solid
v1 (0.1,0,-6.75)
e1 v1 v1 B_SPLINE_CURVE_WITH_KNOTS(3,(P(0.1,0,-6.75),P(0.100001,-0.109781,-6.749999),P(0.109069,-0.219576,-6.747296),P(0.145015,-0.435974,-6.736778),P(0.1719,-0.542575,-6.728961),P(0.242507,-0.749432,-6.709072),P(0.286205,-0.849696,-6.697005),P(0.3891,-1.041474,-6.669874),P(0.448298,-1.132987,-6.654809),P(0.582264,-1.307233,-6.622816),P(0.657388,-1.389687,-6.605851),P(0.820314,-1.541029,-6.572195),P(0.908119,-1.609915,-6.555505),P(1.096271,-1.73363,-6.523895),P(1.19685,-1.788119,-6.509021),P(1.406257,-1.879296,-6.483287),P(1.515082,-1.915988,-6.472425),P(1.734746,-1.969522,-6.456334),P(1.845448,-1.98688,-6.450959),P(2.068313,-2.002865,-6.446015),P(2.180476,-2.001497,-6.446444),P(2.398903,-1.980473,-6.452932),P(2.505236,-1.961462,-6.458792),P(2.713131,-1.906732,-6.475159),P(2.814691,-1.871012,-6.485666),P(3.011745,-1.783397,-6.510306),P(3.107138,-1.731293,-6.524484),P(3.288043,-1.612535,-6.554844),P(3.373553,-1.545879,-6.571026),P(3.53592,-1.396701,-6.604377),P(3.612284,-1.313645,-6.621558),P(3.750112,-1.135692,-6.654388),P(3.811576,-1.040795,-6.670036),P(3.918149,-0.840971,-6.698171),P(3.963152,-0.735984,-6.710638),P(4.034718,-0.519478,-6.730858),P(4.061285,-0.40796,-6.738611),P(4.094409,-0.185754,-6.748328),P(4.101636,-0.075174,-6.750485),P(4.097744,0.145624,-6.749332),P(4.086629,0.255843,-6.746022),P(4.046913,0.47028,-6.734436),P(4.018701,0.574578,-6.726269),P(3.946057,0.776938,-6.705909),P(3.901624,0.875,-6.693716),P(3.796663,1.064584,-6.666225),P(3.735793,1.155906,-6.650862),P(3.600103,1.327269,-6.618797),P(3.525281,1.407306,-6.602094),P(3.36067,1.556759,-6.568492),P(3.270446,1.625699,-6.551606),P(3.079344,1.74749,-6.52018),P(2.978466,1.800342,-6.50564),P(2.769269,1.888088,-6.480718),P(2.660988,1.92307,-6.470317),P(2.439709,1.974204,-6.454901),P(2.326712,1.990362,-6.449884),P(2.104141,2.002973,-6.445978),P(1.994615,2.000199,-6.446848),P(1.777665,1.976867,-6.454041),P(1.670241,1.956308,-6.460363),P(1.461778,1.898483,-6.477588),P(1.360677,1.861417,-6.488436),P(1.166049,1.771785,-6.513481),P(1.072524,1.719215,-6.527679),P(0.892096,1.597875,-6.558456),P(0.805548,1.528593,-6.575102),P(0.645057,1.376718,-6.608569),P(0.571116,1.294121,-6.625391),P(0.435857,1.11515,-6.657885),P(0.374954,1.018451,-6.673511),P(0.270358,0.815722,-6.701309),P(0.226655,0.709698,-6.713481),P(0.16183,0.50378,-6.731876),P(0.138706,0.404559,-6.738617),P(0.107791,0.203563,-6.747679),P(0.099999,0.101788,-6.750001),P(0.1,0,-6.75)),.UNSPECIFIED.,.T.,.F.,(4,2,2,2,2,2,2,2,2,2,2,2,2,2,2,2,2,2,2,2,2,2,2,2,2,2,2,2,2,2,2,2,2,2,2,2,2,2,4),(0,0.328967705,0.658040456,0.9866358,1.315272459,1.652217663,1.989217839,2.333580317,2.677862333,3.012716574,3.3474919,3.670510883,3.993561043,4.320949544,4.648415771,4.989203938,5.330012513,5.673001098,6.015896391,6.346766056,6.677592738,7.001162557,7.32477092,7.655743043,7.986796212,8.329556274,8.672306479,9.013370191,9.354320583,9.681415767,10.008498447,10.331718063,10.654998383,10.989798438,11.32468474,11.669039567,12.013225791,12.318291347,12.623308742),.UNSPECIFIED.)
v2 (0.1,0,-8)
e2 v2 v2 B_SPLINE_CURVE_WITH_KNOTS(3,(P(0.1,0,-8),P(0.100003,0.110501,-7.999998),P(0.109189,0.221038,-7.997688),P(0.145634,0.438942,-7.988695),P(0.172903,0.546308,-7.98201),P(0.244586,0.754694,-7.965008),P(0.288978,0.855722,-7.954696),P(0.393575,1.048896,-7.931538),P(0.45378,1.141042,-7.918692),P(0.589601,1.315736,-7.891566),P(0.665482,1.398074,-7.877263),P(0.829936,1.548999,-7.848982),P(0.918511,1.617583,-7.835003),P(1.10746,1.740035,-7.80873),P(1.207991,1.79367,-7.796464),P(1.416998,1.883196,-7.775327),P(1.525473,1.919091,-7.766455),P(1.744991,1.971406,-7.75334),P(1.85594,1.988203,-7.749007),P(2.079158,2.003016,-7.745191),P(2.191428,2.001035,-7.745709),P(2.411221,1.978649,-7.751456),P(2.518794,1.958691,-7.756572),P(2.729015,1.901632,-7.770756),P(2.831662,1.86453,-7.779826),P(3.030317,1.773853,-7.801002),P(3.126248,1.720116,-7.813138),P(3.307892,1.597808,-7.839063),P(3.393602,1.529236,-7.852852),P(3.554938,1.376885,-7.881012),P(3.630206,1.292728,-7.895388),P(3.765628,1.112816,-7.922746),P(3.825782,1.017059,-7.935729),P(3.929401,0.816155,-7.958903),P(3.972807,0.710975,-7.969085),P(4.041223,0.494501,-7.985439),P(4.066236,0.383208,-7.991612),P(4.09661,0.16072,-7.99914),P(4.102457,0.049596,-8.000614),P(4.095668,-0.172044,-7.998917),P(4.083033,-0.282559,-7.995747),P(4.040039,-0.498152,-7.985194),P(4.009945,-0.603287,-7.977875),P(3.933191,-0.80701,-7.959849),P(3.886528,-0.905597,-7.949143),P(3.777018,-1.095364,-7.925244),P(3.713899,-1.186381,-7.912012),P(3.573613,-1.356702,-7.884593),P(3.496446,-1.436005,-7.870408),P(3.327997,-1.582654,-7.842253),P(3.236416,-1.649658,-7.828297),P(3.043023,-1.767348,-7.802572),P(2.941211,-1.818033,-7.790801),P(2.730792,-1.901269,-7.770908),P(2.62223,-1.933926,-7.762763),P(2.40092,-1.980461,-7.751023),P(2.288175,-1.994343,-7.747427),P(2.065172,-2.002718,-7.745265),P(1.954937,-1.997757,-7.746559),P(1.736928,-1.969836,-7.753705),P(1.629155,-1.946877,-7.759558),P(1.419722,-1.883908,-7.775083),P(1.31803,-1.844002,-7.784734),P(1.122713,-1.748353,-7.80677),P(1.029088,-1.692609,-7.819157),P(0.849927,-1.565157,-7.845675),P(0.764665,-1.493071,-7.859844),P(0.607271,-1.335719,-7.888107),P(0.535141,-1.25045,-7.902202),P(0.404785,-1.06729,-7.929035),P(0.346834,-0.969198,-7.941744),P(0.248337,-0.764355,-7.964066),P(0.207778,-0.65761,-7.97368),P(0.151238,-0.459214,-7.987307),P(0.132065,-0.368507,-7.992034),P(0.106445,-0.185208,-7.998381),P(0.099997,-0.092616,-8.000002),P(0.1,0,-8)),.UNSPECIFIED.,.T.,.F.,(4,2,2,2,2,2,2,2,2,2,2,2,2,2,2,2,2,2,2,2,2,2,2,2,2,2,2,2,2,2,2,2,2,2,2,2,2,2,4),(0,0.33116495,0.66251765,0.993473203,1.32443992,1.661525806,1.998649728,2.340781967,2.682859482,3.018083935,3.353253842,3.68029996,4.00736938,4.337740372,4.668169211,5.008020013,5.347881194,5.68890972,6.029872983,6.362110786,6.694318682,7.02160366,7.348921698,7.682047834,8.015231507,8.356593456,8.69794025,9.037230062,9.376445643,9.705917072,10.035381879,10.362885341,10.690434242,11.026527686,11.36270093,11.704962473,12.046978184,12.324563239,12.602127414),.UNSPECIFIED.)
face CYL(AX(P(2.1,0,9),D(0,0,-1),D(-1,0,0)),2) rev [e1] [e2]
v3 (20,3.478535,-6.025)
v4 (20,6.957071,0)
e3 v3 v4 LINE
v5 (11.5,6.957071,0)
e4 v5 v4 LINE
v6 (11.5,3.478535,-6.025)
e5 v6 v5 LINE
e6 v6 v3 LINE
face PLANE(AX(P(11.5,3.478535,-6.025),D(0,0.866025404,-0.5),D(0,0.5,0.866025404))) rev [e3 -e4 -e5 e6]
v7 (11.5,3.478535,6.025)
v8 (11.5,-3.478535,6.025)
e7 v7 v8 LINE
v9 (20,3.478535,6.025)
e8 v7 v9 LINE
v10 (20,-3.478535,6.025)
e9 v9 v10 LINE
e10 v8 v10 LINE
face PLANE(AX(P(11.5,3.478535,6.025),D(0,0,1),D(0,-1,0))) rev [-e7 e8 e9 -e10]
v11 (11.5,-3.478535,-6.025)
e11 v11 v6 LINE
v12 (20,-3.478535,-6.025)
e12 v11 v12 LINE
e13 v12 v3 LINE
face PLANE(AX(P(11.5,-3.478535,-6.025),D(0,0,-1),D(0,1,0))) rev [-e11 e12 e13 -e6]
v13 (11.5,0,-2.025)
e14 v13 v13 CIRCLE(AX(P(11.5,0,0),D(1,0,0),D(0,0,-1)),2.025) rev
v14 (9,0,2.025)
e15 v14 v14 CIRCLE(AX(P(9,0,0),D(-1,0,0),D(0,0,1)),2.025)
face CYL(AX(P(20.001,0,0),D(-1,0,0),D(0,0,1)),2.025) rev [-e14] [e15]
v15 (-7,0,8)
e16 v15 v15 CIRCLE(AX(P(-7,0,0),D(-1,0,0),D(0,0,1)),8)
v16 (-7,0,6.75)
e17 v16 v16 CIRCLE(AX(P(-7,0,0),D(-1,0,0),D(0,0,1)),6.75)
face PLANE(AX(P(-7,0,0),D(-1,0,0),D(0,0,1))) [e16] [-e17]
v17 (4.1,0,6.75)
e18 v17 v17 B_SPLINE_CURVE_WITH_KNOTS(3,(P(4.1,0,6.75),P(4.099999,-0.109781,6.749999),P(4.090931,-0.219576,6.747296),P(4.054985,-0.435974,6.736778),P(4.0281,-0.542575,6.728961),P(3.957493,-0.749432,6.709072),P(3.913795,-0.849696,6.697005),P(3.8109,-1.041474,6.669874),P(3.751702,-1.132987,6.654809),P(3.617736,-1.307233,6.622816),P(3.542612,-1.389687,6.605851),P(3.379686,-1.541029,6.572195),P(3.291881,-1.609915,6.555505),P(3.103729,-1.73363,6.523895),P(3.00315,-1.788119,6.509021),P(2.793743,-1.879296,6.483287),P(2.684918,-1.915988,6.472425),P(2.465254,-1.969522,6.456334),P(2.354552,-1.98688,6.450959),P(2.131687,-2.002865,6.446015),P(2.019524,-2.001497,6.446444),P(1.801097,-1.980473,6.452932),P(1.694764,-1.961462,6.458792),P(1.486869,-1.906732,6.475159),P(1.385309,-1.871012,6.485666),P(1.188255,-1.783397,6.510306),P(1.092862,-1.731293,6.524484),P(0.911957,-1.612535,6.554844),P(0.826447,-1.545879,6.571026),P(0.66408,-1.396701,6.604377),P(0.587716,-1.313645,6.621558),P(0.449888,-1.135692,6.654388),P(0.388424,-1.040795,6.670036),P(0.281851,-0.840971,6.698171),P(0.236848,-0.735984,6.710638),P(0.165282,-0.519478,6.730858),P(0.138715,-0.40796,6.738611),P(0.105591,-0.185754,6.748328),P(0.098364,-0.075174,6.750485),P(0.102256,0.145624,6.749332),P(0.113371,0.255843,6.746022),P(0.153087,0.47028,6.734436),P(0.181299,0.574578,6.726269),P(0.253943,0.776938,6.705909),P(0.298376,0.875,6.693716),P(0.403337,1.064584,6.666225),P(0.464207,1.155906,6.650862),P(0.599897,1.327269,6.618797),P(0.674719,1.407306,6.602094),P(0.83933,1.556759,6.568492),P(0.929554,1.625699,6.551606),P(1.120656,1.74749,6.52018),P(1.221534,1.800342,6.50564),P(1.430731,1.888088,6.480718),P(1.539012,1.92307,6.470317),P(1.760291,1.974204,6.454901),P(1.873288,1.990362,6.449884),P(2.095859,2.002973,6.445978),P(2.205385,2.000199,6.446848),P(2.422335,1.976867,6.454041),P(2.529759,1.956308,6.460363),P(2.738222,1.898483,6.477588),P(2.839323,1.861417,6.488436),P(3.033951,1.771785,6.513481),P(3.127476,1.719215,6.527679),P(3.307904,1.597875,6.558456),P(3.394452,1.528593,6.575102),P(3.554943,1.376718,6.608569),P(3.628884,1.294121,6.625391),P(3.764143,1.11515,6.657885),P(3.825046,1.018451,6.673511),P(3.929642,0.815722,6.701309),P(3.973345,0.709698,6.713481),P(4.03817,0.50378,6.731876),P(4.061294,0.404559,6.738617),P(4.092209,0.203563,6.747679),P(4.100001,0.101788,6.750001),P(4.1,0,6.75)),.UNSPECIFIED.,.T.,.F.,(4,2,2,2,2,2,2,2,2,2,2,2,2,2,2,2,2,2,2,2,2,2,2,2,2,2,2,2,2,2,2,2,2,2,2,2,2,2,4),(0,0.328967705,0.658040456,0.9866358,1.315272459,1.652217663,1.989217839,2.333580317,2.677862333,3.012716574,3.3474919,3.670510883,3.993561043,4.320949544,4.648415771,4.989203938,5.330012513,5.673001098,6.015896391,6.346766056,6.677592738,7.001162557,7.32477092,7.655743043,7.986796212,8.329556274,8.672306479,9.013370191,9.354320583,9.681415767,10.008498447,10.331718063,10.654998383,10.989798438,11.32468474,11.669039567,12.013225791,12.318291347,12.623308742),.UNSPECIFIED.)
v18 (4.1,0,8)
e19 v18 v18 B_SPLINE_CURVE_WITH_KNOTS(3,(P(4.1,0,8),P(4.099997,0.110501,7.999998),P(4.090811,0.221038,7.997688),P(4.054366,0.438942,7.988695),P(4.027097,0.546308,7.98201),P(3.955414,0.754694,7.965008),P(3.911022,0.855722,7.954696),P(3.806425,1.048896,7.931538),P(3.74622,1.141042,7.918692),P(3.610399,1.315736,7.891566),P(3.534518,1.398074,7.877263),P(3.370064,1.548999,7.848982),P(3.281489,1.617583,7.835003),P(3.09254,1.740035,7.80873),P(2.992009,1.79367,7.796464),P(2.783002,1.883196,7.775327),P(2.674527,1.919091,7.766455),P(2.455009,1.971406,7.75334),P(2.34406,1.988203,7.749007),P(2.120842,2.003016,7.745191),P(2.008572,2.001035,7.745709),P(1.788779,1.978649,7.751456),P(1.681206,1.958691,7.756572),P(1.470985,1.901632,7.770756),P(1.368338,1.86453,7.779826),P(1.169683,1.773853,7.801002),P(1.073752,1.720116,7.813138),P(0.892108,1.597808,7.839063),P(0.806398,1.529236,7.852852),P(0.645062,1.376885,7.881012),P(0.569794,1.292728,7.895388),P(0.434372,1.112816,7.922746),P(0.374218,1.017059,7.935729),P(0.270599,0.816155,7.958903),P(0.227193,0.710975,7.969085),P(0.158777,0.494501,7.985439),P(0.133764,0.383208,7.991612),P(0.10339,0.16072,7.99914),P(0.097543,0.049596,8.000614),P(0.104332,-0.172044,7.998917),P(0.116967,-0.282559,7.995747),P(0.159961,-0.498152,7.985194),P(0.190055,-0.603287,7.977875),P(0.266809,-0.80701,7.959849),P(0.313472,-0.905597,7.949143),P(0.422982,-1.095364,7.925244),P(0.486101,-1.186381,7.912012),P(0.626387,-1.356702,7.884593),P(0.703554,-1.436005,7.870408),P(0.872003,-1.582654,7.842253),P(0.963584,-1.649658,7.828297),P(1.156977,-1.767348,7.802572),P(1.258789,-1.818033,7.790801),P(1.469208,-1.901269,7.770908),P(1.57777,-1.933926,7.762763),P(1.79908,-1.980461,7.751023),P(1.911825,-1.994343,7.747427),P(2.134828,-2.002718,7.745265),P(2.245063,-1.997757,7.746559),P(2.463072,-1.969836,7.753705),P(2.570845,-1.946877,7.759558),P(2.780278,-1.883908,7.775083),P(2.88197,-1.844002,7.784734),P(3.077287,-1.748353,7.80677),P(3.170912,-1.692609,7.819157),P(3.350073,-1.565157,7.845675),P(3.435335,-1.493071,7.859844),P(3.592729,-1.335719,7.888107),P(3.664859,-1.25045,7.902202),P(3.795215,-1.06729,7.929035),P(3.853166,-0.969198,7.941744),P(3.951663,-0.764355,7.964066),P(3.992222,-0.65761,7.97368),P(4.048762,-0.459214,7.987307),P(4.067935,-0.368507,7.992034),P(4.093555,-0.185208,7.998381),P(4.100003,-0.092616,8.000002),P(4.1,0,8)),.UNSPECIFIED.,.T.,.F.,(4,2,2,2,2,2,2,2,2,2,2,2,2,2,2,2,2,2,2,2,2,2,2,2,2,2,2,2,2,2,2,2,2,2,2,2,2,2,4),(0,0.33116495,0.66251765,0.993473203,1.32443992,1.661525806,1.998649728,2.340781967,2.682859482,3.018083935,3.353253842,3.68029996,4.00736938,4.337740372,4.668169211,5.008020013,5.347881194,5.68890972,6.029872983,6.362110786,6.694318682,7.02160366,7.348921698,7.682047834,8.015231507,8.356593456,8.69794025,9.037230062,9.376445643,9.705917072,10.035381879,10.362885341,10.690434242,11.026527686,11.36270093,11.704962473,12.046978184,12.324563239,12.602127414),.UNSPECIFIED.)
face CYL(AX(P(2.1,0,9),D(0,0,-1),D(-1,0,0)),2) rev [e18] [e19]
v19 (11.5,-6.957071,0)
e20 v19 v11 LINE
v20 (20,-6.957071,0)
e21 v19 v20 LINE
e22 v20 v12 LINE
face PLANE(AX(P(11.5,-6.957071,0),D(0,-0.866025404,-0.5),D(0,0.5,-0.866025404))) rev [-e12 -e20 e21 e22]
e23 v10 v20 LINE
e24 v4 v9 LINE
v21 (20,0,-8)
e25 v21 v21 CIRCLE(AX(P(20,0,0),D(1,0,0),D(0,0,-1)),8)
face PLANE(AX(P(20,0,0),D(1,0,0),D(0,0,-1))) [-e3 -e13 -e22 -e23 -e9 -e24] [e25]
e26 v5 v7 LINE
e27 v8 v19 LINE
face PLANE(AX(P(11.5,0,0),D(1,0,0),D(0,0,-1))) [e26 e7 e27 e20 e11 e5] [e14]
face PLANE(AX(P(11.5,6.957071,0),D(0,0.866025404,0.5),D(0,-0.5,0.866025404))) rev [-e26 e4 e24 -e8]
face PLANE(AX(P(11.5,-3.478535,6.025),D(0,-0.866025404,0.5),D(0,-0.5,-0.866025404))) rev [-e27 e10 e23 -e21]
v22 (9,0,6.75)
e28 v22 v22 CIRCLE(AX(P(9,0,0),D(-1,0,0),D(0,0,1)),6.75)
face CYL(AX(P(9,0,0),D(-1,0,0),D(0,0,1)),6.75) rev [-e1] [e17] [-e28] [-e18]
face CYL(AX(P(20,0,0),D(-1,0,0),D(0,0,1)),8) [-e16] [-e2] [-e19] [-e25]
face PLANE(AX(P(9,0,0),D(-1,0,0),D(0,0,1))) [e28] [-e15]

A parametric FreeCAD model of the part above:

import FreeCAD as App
import Part
import Sketcher
from FreeCAD import Vector
Q = App.Units.Quantity

doc = App.newDocument("Part")
body = doc.addObject("PartDesign::Body", "Body")

# Sketch on YZ plane
sketch1 = doc.addObject("Sketcher::SketchObject", "Sketch")
body.addObject(sketch1)
sketch1.AttachmentSupport = (doc.YZ_Plane, [""])
sketch1.MapMode = "FlatFace"
sketch1.addGeometry(Part.Circle(Vector(0, 0, 0), Vector(0, 0, 1), 8), False)
sketch1.addConstraint([
    Sketcher.Constraint("Coincident", 0, 3, -1, 1),
    Sketcher.Constraint("Diameter", 0, 16.0),
])
pad1 = doc.addObject("PartDesign::Pad", "Pad")
body.addObject(pad1)
pad1.Profile = sketch1
pad1.Length = 20

# Sketch on YZ plane
sketch2 = doc.addObject("Sketcher::SketchObject", "Sketch001")
body.addObject(sketch2)
sketch2.AttachmentSupport = (doc.YZ_Plane, [""])
sketch2.MapMode = "FlatFace"
sketch2.AttachmentOffset = App.Placement(Vector(0, 0, 20), App.Rotation())
sketch2.addGeometry([
    Part.LineSegment(Vector(-6.957071, 0, 0), Vector(-3.478535, -6.025, 0)),  # 0
    Part.LineSegment(Vector(-3.478535, -6.025, 0), Vector(3.478535, -6.025, 0)),  # 1
    Part.LineSegment(Vector(3.478535, -6.025, 0), Vector(6.957071, 0, 0)),  # 2
    Part.LineSegment(Vector(6.957071, 0, 0), Vector(3.478535, 6.025, 0)),  # 3
    Part.LineSegment(Vector(3.478535, 6.025, 0), Vector(-3.478535, 6.025, 0)),  # 4
    Part.LineSegment(Vector(-3.478535, 6.025, 0), Vector(-6.957071, 0, 0)),  # 5
], False)
sketch2.addConstraint([
    Sketcher.Constraint("Coincident", 0, 2, 1, 1),
    Sketcher.Constraint("Coincident", 1, 2, 2, 1),
    Sketcher.Constraint("Coincident", 2, 2, 3, 1),
    Sketcher.Constraint("Coincident", 3, 2, 4, 1),
    Sketcher.Constraint("Coincident", 4, 2, 5, 1),
    Sketcher.Constraint("Coincident", 5, 2, 0, 1),
    Sketcher.Constraint("Horizontal", 1),
    Sketcher.Constraint("Horizontal", 4),
    Sketcher.Constraint("Symmetric", 0, 2, 3, 2, -1, 1),
    Sketcher.Constraint("Symmetric", 2, 2, 5, 2, -1, 1),
    Sketcher.Constraint("PointOnObject", 2, 2, -1),
    Sketcher.Constraint("Parallel", 2, 5),
    Sketcher.Constraint("Vertical", 1, 2, 3, 2),
    Sketcher.Constraint("Angle", 0, Q("-60 deg")),
    Sketcher.Constraint("DistanceY", 1, 2, 3, 2, 12.05),
    Sketcher.Constraint("DistanceX", 1, 1, 1, 2, 6.957071),
])
pocket1 = doc.addObject("PartDesign::Pocket", "Pocket")
body.addObject(pocket1)
pocket1.Profile = sketch2
pocket1.Length = 8.5

# Sketch on YZ plane
sketch3 = doc.addObject("Sketcher::SketchObject", "Sketch002")
body.addObject(sketch3)
sketch3.AttachmentSupport = (doc.YZ_Plane, [""])
sketch3.MapMode = "FlatFace"
sketch3.addGeometry(Part.Circle(Vector(0, 0, 0), Vector(0, 0, 1), 6.75), False)
sketch3.addConstraint([
    Sketcher.Constraint("Coincident", 0, 3, -1, 1),
    Sketcher.Constraint("Diameter", 0, 13.5),
])
pocket2 = doc.addObject("PartDesign::Pocket", "Pocket001")
body.addObject(pocket2)
pocket2.Profile = sketch3
pocket2.Length = 9
pocket2.Reversed = True

# Sketch on YZ plane
sketch4 = doc.addObject("Sketcher::SketchObject", "Sketch003")
body.addObject(sketch4)
sketch4.AttachmentSupport = (doc.YZ_Plane, [""])
sketch4.MapMode = "FlatFace"
sketch4.AttachmentOffset = App.Placement(Vector(0, 0, 9), App.Rotation())
sketch4.addGeometry(Part.Circle(Vector(0, 0, 0), Vector(0, 0, 1), 2.025), False)
sketch4.addConstraint([
    Sketcher.Constraint("Coincident", 0, 3, -1, 1),
    Sketcher.Constraint("Diameter", 0, 4.05),
])
pocket3 = doc.addObject("PartDesign::Pocket", "Pocket002")
body.addObject(pocket3)
pocket3.Profile = sketch4
pocket3.Type = "UpToFirst"
pocket3.Reversed = True

# Sketch on XY plane
sketch5 = doc.addObject("Sketcher::SketchObject", "Sketch004")
body.addObject(sketch5)
sketch5.AttachmentSupport = (doc.XY_Plane, [""])
sketch5.MapMode = "FlatFace"
sketch5.addGeometry(Part.Circle(Vector(2.1, 0, 0), Vector(0, 0, 1), 2), False)
sketch5.addConstraint([
    Sketcher.Constraint("PointOnObject", 0, 3, -1),
    Sketcher.Constraint("Diameter", 0, 4.0),
    Sketcher.Constraint("DistanceX", -1, 1, 0, 3, 2.1),
])
pocket4 = doc.addObject("PartDesign::Pocket", "Pocket003")
body.addObject(pocket4)
pocket4.Profile = sketch5
pocket4.Type = "ThroughAll"
pocket4.Midplane = True

# Sketch on YZ plane
sketch6 = doc.addObject("Sketcher::SketchObject", "Sketch005")
body.addObject(sketch6)
sketch6.AttachmentSupport = (doc.YZ_Plane, [""])
sketch6.MapMode = "FlatFace"
sketch6.AttachmentOffset = App.Placement(Vector(0, 0, -7), App.Rotation())
sketch6.addGeometry([
    Part.Circle(Vector(0, 0, 0), Vector(0, 0, 1), 8),
    Part.Circle(Vector(0, 0, 0), Vector(0, 0, 1), 6.75),
], False)
sketch6.addConstraint([
    Sketcher.Constraint("Coincident", 0, 3, -1, 1),
    Sketcher.Constraint("Coincident", 1, 3, -1, 1),
    Sketcher.Constraint("Diameter", 0, 16.0),
    Sketcher.Constraint("Diameter", 1, 13.5),
])
pad2 = doc.addObject("PartDesign::Pad", "Pad001")
body.addObject(pad2)
pad2.Profile = sketch6
pad2.Length = 7

doc.recompute()
